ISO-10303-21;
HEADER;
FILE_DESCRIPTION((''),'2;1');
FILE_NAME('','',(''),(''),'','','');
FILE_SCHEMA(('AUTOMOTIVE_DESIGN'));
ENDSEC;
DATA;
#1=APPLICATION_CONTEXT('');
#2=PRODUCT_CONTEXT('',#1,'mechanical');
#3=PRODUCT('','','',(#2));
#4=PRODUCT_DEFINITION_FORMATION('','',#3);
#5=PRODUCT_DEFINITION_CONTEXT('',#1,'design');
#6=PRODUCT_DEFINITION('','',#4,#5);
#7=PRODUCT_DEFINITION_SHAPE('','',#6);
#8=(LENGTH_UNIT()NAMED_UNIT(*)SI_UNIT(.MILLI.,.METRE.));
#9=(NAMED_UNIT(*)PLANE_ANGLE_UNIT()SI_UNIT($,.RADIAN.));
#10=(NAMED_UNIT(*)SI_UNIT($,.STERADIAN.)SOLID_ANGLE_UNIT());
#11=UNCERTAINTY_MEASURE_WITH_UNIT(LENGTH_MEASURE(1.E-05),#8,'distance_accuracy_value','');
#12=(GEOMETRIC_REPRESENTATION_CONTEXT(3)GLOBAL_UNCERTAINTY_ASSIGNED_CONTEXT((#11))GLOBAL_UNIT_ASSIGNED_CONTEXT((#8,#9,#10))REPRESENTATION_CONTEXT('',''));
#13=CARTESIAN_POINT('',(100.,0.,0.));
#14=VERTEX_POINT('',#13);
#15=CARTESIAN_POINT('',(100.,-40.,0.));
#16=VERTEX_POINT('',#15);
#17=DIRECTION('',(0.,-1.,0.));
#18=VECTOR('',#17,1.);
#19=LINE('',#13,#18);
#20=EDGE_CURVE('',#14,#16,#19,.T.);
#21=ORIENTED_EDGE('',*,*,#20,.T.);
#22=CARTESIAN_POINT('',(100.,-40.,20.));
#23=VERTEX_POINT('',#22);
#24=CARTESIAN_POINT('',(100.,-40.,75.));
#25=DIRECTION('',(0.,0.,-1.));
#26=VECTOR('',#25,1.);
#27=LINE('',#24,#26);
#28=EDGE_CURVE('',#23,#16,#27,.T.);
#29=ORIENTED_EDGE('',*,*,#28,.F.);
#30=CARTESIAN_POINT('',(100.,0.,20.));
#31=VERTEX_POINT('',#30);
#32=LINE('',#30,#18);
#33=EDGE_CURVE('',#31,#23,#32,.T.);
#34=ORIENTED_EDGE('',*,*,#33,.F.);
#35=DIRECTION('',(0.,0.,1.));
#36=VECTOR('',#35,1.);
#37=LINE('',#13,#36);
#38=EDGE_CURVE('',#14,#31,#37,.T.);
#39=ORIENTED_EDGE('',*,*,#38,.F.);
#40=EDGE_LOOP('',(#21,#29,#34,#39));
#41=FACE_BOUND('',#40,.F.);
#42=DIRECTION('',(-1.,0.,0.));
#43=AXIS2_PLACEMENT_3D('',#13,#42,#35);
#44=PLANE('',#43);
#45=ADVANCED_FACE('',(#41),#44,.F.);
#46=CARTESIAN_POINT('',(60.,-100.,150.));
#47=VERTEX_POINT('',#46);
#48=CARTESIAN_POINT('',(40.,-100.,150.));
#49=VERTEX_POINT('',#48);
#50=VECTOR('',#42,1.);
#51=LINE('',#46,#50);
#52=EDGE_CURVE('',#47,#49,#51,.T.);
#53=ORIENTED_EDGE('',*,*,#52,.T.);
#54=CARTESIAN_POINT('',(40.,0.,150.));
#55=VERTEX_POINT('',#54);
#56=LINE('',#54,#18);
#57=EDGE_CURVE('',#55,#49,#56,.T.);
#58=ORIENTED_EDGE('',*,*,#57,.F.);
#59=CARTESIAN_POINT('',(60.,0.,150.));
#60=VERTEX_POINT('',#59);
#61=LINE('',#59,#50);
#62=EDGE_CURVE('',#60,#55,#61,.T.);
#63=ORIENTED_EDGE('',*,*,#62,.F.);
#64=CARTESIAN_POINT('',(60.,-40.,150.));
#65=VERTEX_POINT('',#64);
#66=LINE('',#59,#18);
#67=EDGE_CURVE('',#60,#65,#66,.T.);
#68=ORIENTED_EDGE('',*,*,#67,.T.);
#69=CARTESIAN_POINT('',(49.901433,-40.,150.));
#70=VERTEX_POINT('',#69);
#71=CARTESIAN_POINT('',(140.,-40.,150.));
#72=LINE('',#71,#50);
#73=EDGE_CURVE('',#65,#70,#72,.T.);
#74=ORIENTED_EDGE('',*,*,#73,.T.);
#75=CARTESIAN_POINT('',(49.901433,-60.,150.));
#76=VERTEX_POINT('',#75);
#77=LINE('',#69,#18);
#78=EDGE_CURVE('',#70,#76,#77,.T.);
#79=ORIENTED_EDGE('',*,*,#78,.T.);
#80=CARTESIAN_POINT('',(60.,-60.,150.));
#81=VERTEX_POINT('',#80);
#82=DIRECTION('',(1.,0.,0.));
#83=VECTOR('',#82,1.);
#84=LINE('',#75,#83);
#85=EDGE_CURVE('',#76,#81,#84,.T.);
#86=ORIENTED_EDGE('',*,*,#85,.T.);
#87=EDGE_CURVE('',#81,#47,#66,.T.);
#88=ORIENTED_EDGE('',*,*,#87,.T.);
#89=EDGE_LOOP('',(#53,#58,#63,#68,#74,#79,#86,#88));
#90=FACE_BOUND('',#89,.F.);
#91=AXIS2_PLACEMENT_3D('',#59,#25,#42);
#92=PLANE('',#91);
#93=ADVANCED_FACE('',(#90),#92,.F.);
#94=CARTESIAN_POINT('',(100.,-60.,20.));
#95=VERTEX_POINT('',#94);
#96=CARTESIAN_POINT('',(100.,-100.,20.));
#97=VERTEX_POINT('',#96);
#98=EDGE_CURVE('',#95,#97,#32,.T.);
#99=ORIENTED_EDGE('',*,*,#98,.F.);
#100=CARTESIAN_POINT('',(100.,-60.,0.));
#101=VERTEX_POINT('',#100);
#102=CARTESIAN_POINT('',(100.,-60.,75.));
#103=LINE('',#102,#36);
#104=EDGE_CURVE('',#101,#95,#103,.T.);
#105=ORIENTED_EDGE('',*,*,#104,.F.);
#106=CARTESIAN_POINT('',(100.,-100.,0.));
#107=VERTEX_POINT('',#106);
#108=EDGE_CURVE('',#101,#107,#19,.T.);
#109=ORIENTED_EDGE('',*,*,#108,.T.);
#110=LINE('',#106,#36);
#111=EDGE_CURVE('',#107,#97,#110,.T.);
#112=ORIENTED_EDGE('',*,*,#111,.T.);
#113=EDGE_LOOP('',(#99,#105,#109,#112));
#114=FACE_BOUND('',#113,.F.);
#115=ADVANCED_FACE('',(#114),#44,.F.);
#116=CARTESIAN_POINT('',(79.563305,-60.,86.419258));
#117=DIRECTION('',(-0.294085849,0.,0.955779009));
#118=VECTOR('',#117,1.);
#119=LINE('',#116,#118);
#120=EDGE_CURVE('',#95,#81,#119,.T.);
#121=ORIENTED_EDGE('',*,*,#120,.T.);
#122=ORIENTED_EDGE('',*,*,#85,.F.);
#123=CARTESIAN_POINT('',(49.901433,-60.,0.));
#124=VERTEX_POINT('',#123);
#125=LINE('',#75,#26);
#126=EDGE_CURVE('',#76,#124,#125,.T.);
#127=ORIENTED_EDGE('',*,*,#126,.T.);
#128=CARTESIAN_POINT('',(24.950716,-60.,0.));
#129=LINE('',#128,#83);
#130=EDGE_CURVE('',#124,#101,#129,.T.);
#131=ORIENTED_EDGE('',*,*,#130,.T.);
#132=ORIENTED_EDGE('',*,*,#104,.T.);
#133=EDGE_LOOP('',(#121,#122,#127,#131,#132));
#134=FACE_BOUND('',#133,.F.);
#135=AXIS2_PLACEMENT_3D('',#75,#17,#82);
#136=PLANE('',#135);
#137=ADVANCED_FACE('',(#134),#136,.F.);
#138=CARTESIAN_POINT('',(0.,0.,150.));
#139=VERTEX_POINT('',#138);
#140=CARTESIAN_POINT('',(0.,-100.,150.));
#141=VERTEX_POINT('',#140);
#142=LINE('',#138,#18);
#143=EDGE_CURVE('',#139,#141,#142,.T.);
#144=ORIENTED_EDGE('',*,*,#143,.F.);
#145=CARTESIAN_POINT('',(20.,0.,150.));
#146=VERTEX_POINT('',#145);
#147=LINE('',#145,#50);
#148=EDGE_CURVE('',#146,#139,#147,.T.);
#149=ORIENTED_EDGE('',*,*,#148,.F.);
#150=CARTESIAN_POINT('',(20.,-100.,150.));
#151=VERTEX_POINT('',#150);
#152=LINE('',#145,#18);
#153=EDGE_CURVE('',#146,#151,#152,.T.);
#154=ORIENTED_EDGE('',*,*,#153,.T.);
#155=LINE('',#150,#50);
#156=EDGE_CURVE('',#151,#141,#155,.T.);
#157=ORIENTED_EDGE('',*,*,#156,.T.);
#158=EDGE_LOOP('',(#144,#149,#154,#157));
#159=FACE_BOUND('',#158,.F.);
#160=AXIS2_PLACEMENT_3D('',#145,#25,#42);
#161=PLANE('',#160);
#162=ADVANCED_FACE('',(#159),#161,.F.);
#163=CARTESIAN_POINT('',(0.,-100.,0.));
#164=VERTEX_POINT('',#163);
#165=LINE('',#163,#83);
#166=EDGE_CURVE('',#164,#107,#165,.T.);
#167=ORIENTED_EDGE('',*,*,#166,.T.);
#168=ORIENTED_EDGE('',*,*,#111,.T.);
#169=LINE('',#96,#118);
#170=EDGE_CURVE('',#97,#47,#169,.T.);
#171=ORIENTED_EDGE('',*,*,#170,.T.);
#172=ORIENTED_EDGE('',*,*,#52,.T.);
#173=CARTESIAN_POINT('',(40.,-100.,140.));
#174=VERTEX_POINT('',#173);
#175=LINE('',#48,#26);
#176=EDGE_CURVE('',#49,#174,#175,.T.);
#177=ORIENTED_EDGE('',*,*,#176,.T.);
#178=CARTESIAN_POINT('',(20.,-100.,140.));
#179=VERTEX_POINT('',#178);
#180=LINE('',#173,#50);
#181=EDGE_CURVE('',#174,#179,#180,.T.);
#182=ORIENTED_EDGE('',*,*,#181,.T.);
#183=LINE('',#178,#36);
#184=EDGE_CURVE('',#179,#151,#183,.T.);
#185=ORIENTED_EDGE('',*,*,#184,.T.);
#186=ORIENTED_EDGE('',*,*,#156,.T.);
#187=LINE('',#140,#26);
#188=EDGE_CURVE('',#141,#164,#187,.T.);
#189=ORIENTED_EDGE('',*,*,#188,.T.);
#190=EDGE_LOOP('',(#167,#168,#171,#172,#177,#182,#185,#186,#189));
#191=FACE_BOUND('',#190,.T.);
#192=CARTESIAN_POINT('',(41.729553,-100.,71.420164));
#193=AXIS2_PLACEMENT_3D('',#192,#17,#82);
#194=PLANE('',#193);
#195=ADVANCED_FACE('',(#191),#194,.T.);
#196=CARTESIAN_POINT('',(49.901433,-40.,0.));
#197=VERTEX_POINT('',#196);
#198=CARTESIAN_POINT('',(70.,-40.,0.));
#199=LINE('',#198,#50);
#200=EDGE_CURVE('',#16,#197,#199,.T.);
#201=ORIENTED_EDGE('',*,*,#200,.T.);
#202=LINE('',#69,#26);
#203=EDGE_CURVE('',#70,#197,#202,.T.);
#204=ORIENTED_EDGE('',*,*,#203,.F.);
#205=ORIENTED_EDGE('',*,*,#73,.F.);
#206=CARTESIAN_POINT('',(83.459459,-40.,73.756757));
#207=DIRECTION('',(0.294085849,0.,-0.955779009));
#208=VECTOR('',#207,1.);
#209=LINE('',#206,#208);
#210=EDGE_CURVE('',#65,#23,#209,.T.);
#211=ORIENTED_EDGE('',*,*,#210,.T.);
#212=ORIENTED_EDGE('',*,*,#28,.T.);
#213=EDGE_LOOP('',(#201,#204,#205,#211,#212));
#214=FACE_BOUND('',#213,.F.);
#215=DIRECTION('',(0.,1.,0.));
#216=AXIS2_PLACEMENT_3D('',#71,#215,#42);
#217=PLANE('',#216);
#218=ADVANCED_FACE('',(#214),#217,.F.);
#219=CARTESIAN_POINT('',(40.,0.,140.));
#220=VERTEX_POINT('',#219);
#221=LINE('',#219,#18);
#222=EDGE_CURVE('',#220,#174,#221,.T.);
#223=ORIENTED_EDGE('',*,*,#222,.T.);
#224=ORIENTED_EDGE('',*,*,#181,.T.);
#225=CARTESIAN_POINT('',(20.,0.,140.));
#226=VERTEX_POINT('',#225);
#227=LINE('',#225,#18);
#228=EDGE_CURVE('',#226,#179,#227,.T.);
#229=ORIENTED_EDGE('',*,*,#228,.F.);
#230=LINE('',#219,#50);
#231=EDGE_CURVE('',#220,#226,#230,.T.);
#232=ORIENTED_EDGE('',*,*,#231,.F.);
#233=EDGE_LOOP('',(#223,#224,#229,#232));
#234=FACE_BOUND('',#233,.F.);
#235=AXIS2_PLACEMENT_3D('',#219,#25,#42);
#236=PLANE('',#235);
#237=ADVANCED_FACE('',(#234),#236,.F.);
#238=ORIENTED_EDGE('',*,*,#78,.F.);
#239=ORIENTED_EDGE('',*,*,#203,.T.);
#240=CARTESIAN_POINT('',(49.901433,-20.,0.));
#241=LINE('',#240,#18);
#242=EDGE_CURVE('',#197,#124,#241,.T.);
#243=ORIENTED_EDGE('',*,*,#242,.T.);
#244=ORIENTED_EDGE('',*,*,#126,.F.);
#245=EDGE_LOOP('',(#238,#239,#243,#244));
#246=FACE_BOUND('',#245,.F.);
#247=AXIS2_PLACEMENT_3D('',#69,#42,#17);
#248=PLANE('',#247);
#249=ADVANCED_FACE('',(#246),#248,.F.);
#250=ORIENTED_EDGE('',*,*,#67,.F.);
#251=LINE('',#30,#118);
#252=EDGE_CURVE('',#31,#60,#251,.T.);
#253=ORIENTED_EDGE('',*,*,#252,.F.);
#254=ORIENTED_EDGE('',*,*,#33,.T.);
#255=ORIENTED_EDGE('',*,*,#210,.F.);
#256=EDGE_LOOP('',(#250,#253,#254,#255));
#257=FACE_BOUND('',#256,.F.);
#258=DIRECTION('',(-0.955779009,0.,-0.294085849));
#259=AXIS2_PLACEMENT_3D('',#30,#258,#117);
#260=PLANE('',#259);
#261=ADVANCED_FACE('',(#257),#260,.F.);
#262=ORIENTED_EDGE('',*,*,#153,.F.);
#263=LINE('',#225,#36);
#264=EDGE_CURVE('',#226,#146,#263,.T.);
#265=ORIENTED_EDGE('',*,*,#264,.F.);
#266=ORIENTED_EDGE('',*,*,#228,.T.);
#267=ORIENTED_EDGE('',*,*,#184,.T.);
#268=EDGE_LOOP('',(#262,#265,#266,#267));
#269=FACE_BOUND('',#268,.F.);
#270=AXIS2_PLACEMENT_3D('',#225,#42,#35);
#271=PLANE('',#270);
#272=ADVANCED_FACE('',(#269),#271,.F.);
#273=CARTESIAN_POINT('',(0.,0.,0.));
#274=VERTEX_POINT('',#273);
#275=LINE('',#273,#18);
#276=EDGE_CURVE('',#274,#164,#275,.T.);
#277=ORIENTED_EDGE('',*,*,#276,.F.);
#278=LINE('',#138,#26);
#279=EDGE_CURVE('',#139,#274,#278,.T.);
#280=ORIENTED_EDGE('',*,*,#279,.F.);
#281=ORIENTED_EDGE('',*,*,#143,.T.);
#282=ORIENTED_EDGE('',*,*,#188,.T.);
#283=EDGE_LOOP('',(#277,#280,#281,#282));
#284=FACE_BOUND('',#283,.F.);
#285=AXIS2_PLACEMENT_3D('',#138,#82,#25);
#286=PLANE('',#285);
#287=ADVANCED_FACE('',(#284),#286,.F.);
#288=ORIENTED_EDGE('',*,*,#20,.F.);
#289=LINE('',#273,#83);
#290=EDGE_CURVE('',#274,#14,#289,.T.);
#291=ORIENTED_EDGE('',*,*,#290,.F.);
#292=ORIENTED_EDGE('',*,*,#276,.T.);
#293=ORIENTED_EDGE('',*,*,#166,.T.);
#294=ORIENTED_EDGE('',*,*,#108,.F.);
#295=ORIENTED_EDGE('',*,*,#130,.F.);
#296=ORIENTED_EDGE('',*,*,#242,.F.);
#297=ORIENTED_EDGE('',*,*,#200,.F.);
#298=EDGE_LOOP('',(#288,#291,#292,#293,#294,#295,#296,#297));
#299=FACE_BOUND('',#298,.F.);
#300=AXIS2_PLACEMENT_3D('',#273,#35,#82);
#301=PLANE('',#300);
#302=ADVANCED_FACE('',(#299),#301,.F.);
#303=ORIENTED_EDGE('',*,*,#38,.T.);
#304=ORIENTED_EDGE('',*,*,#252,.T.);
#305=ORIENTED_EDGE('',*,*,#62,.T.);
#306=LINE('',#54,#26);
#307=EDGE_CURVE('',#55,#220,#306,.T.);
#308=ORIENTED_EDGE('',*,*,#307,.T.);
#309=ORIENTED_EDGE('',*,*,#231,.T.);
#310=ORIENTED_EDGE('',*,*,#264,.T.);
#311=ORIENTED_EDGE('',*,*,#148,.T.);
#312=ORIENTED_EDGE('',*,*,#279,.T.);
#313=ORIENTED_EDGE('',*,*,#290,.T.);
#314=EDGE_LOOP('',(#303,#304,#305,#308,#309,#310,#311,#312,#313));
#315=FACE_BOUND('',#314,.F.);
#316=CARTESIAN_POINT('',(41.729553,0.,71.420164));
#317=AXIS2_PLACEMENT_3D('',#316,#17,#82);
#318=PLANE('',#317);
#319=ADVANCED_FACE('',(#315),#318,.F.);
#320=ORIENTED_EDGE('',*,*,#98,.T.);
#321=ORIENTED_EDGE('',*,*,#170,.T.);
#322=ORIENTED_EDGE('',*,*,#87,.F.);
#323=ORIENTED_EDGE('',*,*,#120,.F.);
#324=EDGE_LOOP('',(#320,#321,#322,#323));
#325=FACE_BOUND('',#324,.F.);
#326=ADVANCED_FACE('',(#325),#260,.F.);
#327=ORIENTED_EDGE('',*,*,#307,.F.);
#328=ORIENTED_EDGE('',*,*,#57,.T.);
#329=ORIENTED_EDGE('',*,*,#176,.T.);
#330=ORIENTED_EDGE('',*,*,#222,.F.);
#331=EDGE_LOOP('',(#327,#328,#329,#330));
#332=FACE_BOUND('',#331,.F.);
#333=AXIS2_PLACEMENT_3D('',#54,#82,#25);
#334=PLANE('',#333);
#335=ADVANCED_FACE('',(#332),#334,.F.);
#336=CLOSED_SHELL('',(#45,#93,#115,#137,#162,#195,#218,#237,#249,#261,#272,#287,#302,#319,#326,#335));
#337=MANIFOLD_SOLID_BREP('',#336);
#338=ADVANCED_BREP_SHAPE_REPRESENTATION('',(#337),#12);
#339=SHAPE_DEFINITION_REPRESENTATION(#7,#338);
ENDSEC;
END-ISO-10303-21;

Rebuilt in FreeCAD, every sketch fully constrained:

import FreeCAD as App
import Part
import Sketcher
Q = App.Units.Quantity


def add_polygon(sketch, points):
    """Adds a closed chain of lines whose ends are joined by coincident constraints."""
    first, n = sketch.GeometryCount, len(points)
    for a, b in zip(points, points[1:] + points[:1]):
        sketch.addGeometry(Part.LineSegment(App.Vector(*a, 0), App.Vector(*b, 0)), False)
    for i in range(n):
        sketch.addConstraint(Sketcher.Constraint("Coincident", first + i, 2, first + (i + 1) % n, 1))

doc = App.newDocument("Part")
params = doc.addObject("Spreadsheet::Sheet", "Params")
for row, (alias, value) in enumerate([
    ("sketch1_width", "100 mm"),
    ("sketch1_width2", "20 mm"),
    ("sketch1_height", "150 mm"),
    ("sketch1_height2", "10 mm"),
    ("pad1_length", "100 mm"),
    ("sketch2_height", "20 mm"),
    ("pocket1_length", "182 mm"),
], start=1):
    params.set(f"A{row}", alias)
    params.set(f"B{row}", "=" + value)
    params.setAlias(f"B{row}", alias)

body = doc.addObject("PartDesign::Body", "Body")

# Sketch on XZ plane
sketch1 = body.newObject("Sketcher::SketchObject", "Sketch")
sketch1.AttachmentSupport = (doc.getObject("XZ_Plane"), [""])
sketch1.MapMode = "FlatFace"
add_polygon(sketch1, [(0, 150), (0, 0), (100, 0), (100, 20), (60, 150), (40, 150), (40, 140), (20, 140), (20, 150)])  # lines 0-8
sketch1.addConstraint([
    Sketcher.Constraint("Vertical", 0),
    Sketcher.Constraint("Horizontal", 1),
    Sketcher.Constraint("Vertical", 2),
    Sketcher.Constraint("Horizontal", 4),
    Sketcher.Constraint("Vertical", 5),
    Sketcher.Constraint("Horizontal", 6),
    Sketcher.Constraint("Vertical", 7),
    Sketcher.Constraint("Horizontal", 8),
    Sketcher.Constraint("Coincident", 0, 2, -1, 1),
    Sketcher.Constraint("Horizontal", 4, 2, 7, 2),
    Sketcher.Constraint("Equal", 4, 6),
    Sketcher.Constraint("Equal", 6, 8),
    Sketcher.Constraint("Equal", 8, 2),
    Sketcher.Constraint("DistanceX", 1, 1, 1, 2, Q("100 mm")),
    Sketcher.Constraint("DistanceX", 4, 2, 4, 1, Q("20 mm")),
    Sketcher.Constraint("DistanceY", 0, 2, 0, 1, Q("150 mm")),
    Sketcher.Constraint("DistanceY", 5, 2, 5, 1, Q("10 mm")),
])
sketch1.setExpression("Constraints[22]", "Params.sketch1_width")
sketch1.setExpression("Constraints[23]", "Params.sketch1_width2")
sketch1.setExpression("Constraints[24]", "Params.sketch1_height")
sketch1.setExpression("Constraints[25]", "Params.sketch1_height2")
pad1 = body.newObject("PartDesign::Pad", "Pad")
pad1.Profile = sketch1
pad1.setExpression("Length", "Params.pad1_length")

# Sketch on XY plane
sketch2 = body.newObject("Sketcher::SketchObject", "Sketch001")
sketch2.AttachmentSupport = (doc.getObject("XY_Plane"), [""])
sketch2.MapMode = "FlatFace"
sketch2.AttachmentOffset = App.Placement(App.Vector(0, 0, 150), App.Rotation())
add_polygon(sketch2, [(140, -60), (140, -40), (49.901433, -40), (49.901433, -60)])  # lines 0-3
sketch2.addConstraint([
    Sketcher.Constraint("Vertical", 0),
    Sketcher.Constraint("Horizontal", 1),
    Sketcher.Constraint("Vertical", 2),
    Sketcher.Constraint("Horizontal", 3),
    Sketcher.Constraint("DistanceY", 0, 1, 0, 2, Q("20 mm")),
    Sketcher.Constraint("DistanceX", -1, 1, 0, 2, Q("140 mm")),
    Sketcher.Constraint("DistanceY", 0, 2, -1, 1, Q("40 mm")),
    Sketcher.Constraint("DistanceX", 1, 2, 1, 1, Q("90.098567 mm")),
])
sketch2.setExpression("Constraints[8]", "Params.sketch2_height")
pocket1 = body.newObject("PartDesign::Pocket", "Pocket")
pocket1.Profile = sketch2
pocket1.setExpression("Length", "Params.pocket1_length")

doc.recompute()
